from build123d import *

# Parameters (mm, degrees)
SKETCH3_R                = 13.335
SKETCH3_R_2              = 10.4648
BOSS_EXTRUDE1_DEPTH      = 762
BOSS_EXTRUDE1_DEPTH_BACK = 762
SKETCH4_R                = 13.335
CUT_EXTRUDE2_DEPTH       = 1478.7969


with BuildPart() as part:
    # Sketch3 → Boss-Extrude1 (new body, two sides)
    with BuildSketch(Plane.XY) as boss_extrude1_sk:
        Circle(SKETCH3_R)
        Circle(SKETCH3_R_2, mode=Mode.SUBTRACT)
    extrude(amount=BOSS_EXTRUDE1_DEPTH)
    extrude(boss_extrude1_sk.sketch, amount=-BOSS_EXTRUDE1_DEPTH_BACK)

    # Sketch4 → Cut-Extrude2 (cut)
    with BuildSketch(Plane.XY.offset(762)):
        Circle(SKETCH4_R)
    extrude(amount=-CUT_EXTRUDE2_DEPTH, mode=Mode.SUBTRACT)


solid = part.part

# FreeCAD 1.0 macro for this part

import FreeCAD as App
import Part
import Sketcher

V = App.Vector
Q = App.Units.Quantity

doc = App.newDocument("Part")
body = doc.addObject("PartDesign::Body", "Body")

sketch1 = body.newObject("Sketcher::SketchObject", "Sketch")
sketch1.AttachmentSupport = (doc.getObject("XY_Plane"), [""])
sketch1.MapMode = "FlatFace"
sketch1.addGeometry([
    Part.Circle(V(0, 0, 0), V(0, 0, 1), 13),
    Part.Circle(V(0, 0, 0), V(0, 0, 1), 10),
], False)
sketch1.addConstraint([
    Sketcher.Constraint("Coincident", 0, 3, -1, 1),
    Sketcher.Constraint("Coincident", 1, 3, -1, 1),
    Sketcher.Constraint("Diameter", 0, Q("1.05 in")),
    Sketcher.Constraint("Diameter", 1, Q("0.824 in")),
])
pad1 = body.newObject("PartDesign::Pad", "Pad")
pad1.Profile = sketch1
pad1.Type = "TwoLengths"
pad1.Length = Q("30 in")
pad1.Length2 = Q("30 in")

sketch2 = body.newObject("Sketcher::SketchObject", "Sketch001")
sketch2.AttachmentSupport = (doc.getObject("XY_Plane"), [""])
sketch2.MapMode = "FlatFace"
sketch2.AttachmentOffset = App.Placement(V(0, 0, 30 * 25.4), App.Rotation())
sketch2.addGeometry(Part.Circle(V(0, 0, 0), V(0, 0, 1), 13), False)
sketch2.addConstraint([
    Sketcher.Constraint("Coincident", 0, 3, -1, 1),
    Sketcher.Constraint("Diameter", 0, Q("1.05 in")),
])
pocket1 = body.newObject("PartDesign::Pocket", "Pocket")
pocket1.Profile = sketch2
pocket1.Length = 1478.7969

doc.recompute()
